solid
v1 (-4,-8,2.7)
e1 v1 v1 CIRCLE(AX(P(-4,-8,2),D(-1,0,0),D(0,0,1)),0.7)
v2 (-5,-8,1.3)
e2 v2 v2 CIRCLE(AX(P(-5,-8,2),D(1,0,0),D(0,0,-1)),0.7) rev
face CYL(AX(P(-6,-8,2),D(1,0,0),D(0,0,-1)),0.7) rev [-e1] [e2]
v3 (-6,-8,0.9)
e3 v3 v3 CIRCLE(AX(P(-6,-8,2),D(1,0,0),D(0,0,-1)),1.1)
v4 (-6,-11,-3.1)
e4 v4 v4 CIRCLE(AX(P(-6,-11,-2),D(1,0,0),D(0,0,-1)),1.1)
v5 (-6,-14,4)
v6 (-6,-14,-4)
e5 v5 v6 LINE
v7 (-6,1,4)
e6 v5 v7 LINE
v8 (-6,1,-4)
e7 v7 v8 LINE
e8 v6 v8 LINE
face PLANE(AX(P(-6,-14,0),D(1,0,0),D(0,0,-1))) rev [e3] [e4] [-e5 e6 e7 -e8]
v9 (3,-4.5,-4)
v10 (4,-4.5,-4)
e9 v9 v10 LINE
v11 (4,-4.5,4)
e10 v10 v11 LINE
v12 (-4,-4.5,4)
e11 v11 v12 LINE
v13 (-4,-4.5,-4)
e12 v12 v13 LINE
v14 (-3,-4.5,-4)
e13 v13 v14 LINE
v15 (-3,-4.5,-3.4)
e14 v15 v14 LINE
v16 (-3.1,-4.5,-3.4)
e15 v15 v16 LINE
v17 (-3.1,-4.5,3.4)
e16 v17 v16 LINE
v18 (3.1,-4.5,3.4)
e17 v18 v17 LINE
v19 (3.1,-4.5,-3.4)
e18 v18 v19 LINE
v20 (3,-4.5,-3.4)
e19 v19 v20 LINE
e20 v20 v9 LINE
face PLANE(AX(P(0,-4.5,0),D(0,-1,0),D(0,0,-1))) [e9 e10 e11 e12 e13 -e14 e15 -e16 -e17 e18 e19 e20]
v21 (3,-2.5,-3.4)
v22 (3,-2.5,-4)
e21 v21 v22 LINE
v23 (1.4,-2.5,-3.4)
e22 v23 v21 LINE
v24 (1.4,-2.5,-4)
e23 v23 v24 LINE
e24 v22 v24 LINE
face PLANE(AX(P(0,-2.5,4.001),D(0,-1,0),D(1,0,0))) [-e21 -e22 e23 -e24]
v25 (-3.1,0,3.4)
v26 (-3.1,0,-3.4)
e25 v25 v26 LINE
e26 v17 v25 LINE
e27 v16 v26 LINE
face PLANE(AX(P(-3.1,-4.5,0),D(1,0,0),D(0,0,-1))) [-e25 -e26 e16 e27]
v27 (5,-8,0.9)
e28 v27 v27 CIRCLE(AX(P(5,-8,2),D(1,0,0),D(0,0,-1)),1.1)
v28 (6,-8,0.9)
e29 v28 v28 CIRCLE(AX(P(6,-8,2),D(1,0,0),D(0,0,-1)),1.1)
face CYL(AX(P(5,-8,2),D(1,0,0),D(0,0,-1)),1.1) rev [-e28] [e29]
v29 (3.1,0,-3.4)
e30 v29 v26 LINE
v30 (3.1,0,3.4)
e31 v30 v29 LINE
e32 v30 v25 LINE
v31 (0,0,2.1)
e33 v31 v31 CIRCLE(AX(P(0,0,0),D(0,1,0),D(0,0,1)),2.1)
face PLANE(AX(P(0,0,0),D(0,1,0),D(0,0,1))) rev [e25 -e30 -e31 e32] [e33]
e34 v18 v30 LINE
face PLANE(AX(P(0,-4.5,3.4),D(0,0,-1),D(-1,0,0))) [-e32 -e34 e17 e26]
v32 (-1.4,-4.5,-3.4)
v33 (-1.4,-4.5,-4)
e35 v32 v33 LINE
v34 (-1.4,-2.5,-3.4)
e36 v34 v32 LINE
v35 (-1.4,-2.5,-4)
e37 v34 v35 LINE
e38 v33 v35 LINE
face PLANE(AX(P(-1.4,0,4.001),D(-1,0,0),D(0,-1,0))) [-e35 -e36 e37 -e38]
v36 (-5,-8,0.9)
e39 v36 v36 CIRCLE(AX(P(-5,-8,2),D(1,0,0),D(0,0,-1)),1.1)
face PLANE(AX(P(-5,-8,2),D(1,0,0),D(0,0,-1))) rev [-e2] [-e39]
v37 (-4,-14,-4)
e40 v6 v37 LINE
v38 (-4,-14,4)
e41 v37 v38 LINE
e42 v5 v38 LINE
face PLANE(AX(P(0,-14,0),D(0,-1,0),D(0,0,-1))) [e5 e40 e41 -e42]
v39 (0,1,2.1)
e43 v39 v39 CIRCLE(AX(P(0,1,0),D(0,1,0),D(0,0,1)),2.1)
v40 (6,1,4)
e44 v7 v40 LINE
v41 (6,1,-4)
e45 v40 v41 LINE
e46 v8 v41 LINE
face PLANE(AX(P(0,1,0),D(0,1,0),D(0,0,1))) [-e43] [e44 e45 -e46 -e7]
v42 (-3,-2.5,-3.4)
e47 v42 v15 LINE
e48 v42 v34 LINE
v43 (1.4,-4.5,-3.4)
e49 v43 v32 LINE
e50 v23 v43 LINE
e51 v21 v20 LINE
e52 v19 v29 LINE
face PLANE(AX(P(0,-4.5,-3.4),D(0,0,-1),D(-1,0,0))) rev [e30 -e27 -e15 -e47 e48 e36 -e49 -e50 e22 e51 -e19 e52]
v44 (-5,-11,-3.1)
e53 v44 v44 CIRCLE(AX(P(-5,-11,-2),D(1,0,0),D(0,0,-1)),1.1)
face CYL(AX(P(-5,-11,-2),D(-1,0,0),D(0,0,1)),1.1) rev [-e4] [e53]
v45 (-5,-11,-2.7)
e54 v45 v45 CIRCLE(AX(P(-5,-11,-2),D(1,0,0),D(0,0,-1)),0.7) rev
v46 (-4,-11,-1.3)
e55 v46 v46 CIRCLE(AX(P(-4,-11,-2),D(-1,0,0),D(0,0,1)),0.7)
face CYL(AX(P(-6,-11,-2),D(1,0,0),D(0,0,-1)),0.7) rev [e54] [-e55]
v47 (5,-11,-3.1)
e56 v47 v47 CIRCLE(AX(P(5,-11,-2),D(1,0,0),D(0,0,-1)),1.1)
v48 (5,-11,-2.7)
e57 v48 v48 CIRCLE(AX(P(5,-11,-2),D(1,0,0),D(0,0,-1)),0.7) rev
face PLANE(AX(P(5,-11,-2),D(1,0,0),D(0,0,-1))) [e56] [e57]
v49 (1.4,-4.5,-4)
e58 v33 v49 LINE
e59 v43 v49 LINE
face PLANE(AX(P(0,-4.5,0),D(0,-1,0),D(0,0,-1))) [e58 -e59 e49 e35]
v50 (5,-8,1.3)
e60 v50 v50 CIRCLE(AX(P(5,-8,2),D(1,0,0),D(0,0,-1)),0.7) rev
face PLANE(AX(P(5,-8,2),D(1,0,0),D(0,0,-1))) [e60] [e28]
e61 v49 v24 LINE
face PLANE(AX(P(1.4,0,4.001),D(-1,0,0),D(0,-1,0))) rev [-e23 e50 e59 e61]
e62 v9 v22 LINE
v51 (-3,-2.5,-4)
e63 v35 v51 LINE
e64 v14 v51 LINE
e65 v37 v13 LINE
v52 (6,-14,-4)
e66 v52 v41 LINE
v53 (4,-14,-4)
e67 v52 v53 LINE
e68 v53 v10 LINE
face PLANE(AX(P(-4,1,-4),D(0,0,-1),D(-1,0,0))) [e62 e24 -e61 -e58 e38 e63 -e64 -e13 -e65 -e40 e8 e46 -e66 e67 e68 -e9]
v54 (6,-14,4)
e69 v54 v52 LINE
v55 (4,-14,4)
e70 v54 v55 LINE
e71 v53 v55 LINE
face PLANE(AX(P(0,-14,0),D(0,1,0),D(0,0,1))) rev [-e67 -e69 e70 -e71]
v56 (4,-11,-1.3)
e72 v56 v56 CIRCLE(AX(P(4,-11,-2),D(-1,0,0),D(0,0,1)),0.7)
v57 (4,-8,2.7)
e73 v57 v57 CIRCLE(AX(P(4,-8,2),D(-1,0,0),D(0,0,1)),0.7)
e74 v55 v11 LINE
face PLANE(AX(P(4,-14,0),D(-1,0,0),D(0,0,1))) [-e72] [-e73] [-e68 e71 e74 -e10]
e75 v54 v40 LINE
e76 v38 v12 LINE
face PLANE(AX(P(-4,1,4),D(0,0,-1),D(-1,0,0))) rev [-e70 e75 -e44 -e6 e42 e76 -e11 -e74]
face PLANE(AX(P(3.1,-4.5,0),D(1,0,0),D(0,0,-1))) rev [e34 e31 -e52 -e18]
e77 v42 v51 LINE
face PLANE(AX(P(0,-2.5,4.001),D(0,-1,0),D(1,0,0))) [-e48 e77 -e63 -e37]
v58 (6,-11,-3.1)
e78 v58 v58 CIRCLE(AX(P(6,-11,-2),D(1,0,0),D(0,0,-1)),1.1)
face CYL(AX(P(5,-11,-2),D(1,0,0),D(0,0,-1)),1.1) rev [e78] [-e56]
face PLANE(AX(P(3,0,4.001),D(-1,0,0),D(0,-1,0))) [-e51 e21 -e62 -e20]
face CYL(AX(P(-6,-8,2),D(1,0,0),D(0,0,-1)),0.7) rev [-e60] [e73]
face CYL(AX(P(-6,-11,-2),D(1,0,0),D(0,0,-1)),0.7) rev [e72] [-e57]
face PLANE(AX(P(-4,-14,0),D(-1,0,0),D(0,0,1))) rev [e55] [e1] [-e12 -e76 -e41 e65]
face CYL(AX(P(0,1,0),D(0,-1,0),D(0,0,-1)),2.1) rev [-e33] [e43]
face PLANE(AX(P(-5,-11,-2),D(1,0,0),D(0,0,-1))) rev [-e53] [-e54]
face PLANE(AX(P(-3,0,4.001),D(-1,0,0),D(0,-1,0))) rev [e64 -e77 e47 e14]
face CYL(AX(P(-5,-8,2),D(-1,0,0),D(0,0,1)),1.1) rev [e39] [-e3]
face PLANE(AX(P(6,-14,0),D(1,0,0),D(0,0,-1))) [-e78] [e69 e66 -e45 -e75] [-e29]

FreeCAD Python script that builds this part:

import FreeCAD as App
import Part
import Sketcher
from FreeCAD import Vector
Q = App.Units.Quantity


def add_polygon(sketch, points):
    """Adds a closed chain of lines whose ends are joined by coincident constraints."""
    first, n = sketch.GeometryCount, len(points)
    for a, b in zip(points, points[1:] + points[:1]):
        sketch.addGeometry(Part.LineSegment(App.Vector(*a, 0), App.Vector(*b, 0)), False)
    for i in range(n):
        sketch.addConstraint(Sketcher.Constraint("Coincident", first + i, 2, first + (i + 1) % n, 1))

doc = App.newDocument("Part")
body = doc.addObject("PartDesign::Body", "Body")

# Sketch on XZ plane
sketch1 = doc.addObject("Sketcher::SketchObject", "Sketch")
body.addObject(sketch1)
sketch1.AttachmentSupport = (doc.XZ_Plane, [""])
sketch1.MapMode = "FlatFace"
add_polygon(sketch1, [(-4, -4), (-4, 4), (4, 4), (4, -4)])  # lines 0-3
sketch1.addGeometry(Part.Circle(Vector(0, 0, 0), Vector(0, 0, 1), 2.1), False)  # 4
sketch1.addConstraint([
    Sketcher.Constraint("Vertical", 0),
    Sketcher.Constraint("Horizontal", 1),
    Sketcher.Constraint("Vertical", 2),
    Sketcher.Constraint("Horizontal", 3),
    Sketcher.Constraint("Coincident", 4, 3, -1, 1),
    Sketcher.Constraint("Symmetric", 0, 2, 2, 2, -1, 1),
    Sketcher.Constraint("Equal", 3, 0),
    Sketcher.Constraint("Diameter", 4, Q("4.2 mm")),
    Sketcher.Constraint("DistanceX", 1, 1, 1, 2, Q("8 mm")),
])
pad1 = doc.addObject("PartDesign::Pad", "Pad")
body.addObject(pad1)
pad1.Profile = sketch1
pad1.Length = 1
pad1.Reversed = True
body2 = doc.addObject("PartDesign::Body", "Body001")

# Sketch on XZ plane
sketch2 = doc.addObject("Sketcher::SketchObject", "Sketch001")
body2.addObject(sketch2)
sketch2.AttachmentSupport = (doc.getObject("XZ_Plane001"), [""])
sketch2.MapMode = "FlatFace"
sketch2.AttachmentOffset = App.Placement(Vector(0, 0, -1), App.Rotation())
add_polygon(sketch2, [(-6, -4), (-6, 4), (-4, 4), (-4, -4)])  # lines 0-3
sketch2.addConstraint([
    Sketcher.Constraint("Vertical", 0),
    Sketcher.Constraint("Horizontal", 1),
    Sketcher.Constraint("Vertical", 2),
    Sketcher.Constraint("Horizontal", 3),
    Sketcher.Constraint("DistanceX", 1, 1, 1, 2, Q("2 mm")),
    Sketcher.Constraint("DistanceY", 0, 1, 0, 2, Q("8 mm")),
    Sketcher.Constraint("DistanceX", 0, 2, -1, 1, Q("6 mm")),
    Sketcher.Constraint("DistanceY", -1, 1, 0, 2, Q("4 mm")),
])
pad2 = doc.addObject("PartDesign::Pad", "Pad001")
body2.addObject(pad2)
pad2.Profile = sketch2
pad2.Length = 15
body3 = doc.addObject("PartDesign::Body", "Body002")

# Sketch on XZ plane
sketch3 = doc.addObject("Sketcher::SketchObject", "Sketch002")
body3.addObject(sketch3)
sketch3.AttachmentSupport = (doc.getObject("XZ_Plane002"), [""])
sketch3.MapMode = "FlatFace"
sketch3.AttachmentOffset = App.Placement(Vector(0, 0, -1), App.Rotation())
add_polygon(sketch3, [(4, -4), (4, 4), (6, 4), (6, -4)])  # lines 0-3
sketch3.addConstraint([
    Sketcher.Constraint("Vertical", 0),
    Sketcher.Constraint("Horizontal", 1),
    Sketcher.Constraint("Vertical", 2),
    Sketcher.Constraint("Horizontal", 3),
    Sketcher.Constraint("DistanceX", 1, 1, 1, 2, Q("2 mm")),
    Sketcher.Constraint("DistanceY", 0, 1, 0, 2, Q("8 mm")),
    Sketcher.Constraint("DistanceX", -1, 1, 0, 2, Q("4 mm")),
    Sketcher.Constraint("DistanceY", -1, 1, 0, 2, Q("4 mm")),
])
pad3 = doc.addObject("PartDesign::Pad", "Pad002")
body3.addObject(pad3)
pad3.Profile = sketch3
pad3.Length = 15
doc.recompute()

boolean = doc.addObject("PartDesign::Boolean", "Boolean")
body.addObject(boolean)
boolean.Type = "Fuse"
boolean.addObjects([body2])
doc.recompute()

boolean2 = doc.addObject("PartDesign::Boolean", "Boolean001")
body.addObject(boolean2)
boolean2.Type = "Fuse"
boolean2.addObjects([body3])

# Sketch on XZ plane
sketch4 = doc.addObject("Sketcher::SketchObject", "Sketch003")
body.addObject(sketch4)
sketch4.AttachmentSupport = (doc.XZ_Plane, [""])
sketch4.MapMode = "FlatFace"
add_polygon(sketch4, [(-4, 4), (-4, -4), (4, -4), (4, 4)])  # lines 0-3
add_polygon(sketch4, [(-3, 3), (3, 3), (3, -3), (-3, -3)])  # lines 4-7
sketch4.addConstraint([
    Sketcher.Constraint("Vertical", 0),
    Sketcher.Constraint("Horizontal", 1),
    Sketcher.Constraint("Vertical", 2),
    Sketcher.Constraint("Horizontal", 3),
    Sketcher.Constraint("Horizontal", 4),
    Sketcher.Constraint("Vertical", 5),
    Sketcher.Constraint("Horizontal", 6),
    Sketcher.Constraint("Vertical", 7),
    Sketcher.Constraint("Symmetric", 0, 2, 2, 2, -1, 1),
    Sketcher.Constraint("Symmetric", 4, 2, 6, 2, -1, 1),
    Sketcher.Constraint("Equal", 3, 0),
    Sketcher.Constraint("DistanceX", 1, 1, 1, 2, Q("8 mm")),
    Sketcher.Constraint("DistanceX", 4, 1, 4, 2, Q("6.2 mm")),
    Sketcher.Constraint("DistanceY", 5, 2, 5, 1, Q("6.8 mm")),
])
pad4 = doc.addObject("PartDesign::Pad", "Pad003")
body.addObject(pad4)
pad4.Profile = sketch4
pad4.Length = 4.5

# Sketch on XY plane
sketch5 = doc.addObject("Sketcher::SketchObject", "Sketch004")
body.addObject(sketch5)
sketch5.AttachmentSupport = (doc.XY_Plane, [""])
sketch5.MapMode = "FlatFace"
sketch5.AttachmentOffset = App.Placement(Vector(0, 0, -4), App.Rotation())
add_polygon(sketch5, [(3, -2.5), (3, -4.5), (1.4, -4.5), (1.4, -2.5)])  # lines 0-3
sketch5.addConstraint([
    Sketcher.Constraint("Vertical", 0),
    Sketcher.Constraint("Horizontal", 1),
    Sketcher.Constraint("Vertical", 2),
    Sketcher.Constraint("Horizontal", 3),
    Sketcher.Constraint("DistanceY", 0, 2, 0, 1, Q("2 mm")),
    Sketcher.Constraint("DistanceX", 1, 2, 1, 1, Q("1.6 mm")),
    Sketcher.Constraint("DistanceX", -1, 1, 0, 2, Q("3 mm")),
    Sketcher.Constraint("DistanceY", 0, 2, -1, 1, Q("4.5 mm")),
])
pocket1 = doc.addObject("PartDesign::Pocket", "Pocket")
body.addObject(pocket1)
pocket1.Profile = sketch5
pocket1.Type = "UpToFirst"
pocket1.Reversed = True

# Sketch on XY plane
sketch6 = doc.addObject("Sketcher::SketchObject", "Sketch005")
body.addObject(sketch6)
sketch6.AttachmentSupport = (doc.XY_Plane, [""])
sketch6.MapMode = "FlatFace"
sketch6.AttachmentOffset = App.Placement(Vector(0, 0, -4), App.Rotation())
add_polygon(sketch6, [(-1.4, -2.5), (-1.4, -4.5), (-3, -4.5), (-3, -2.5)])  # lines 0-3
sketch6.addConstraint([
    Sketcher.Constraint("Vertical", 0),
    Sketcher.Constraint("Horizontal", 1),
    Sketcher.Constraint("Vertical", 2),
    Sketcher.Constraint("Horizontal", 3),
    Sketcher.Constraint("DistanceY", 0, 2, 0, 1, Q("2 mm")),
    Sketcher.Constraint("DistanceX", 1, 2, 1, 1, Q("1.6 mm")),
    Sketcher.Constraint("DistanceX", 1, 2, -1, 1, Q("3 mm")),
    Sketcher.Constraint("DistanceY", 0, 2, -1, 1, Q("4.5 mm")),
])
pocket2 = doc.addObject("PartDesign::Pocket", "Pocket001")
body.addObject(pocket2)
pocket2.Profile = sketch6
pocket2.Type = "UpToFirst"
pocket2.Reversed = True

# Sketch on YZ plane
sketch7 = doc.addObject("Sketcher::SketchObject", "Sketch006")
body.addObject(sketch7)
sketch7.AttachmentSupport = (doc.YZ_Plane, [""])
sketch7.MapMode = "FlatFace"
sketch7.AttachmentOffset = App.Placement(Vector(0, 0, 6), App.Rotation())
sketch7.addGeometry([
    Part.Circle(Vector(-8, 2, 0), Vector(0, 0, 1), 0.7),
    Part.Circle(Vector(-11, -2, 0), Vector(0, 0, 1), 0.7),
], False)
sketch7.addConstraint([
    Sketcher.Constraint("Equal", 0, 1),
    Sketcher.Constraint("Diameter", 0, Q("1.4 mm")),
    Sketcher.Constraint("DistanceX", 0, 3, -1, 1, Q("8 mm")),
    Sketcher.Constraint("DistanceY", -1, 1, 0, 3, Q("2 mm")),
    Sketcher.Constraint("DistanceX", 1, 3, -1, 1, Q("11 mm")),
    Sketcher.Constraint("DistanceY", 1, 3, -1, 1, Q("2 mm")),
])
pocket3 = doc.addObject("PartDesign::Pocket", "Pocket002")
body.addObject(pocket3)
pocket3.Profile = sketch7
pocket3.Type = "ThroughAll"

# Sketch on YZ plane
sketch8 = doc.addObject("Sketcher::SketchObject", "Sketch007")
body.addObject(sketch8)
sketch8.AttachmentSupport = (doc.YZ_Plane, [""])
sketch8.MapMode = "FlatFace"
sketch8.AttachmentOffset = App.Placement(Vector(0, 0, 6), App.Rotation())
sketch8.addGeometry([
    Part.Circle(Vector(-8, 2, 0), Vector(0, 0, 1), 1.1),
    Part.Circle(Vector(-11, -2, 0), Vector(0, 0, 1), 1.1),
], False)
sketch8.addConstraint([
    Sketcher.Constraint("Equal", 0, 1),
    Sketcher.Constraint("Diameter", 0, Q("2.2 mm")),
    Sketcher.Constraint("DistanceX", 0, 3, -1, 1, Q("8 mm")),
    Sketcher.Constraint("DistanceY", -1, 1, 0, 3, Q("2 mm")),
    Sketcher.Constraint("DistanceX", 1, 3, -1, 1, Q("11 mm")),
    Sketcher.Constraint("DistanceY", 1, 3, -1, 1, Q("2 mm")),
])
pocket4 = doc.addObject("PartDesign::Pocket", "Pocket003")
body.addObject(pocket4)
pocket4.Profile = sketch8
pocket4.Length = 1

# Sketch on YZ plane
sketch9 = doc.addObject("Sketcher::SketchObject", "Sketch008")
body.addObject(sketch9)
sketch9.AttachmentSupport = (doc.YZ_Plane, [""])
sketch9.MapMode = "FlatFace"
sketch9.AttachmentOffset = App.Placement(Vector(0, 0, -5), App.Rotation())
sketch9.addGeometry([
    Part.Circle(Vector(-8, 2, 0), Vector(0, 0, 1), 1.1),
    Part.Circle(Vector(-11, -2, 0), Vector(0, 0, 1), 1.1),
], False)
sketch9.addConstraint([
    Sketcher.Constraint("Equal", 0, 1),
    Sketcher.Constraint("Diameter", 0, Q("2.2 mm")),
    Sketcher.Constraint("DistanceX", 0, 3, -1, 1, Q("8 mm")),
    Sketcher.Constraint("DistanceY", -1, 1, 0, 3, Q("2 mm")),
    Sketcher.Constraint("DistanceX", 1, 3, -1, 1, Q("11 mm")),
    Sketcher.Constraint("DistanceY", 1, 3, -1, 1, Q("2 mm")),
])
pocket5 = doc.addObject("PartDesign::Pocket", "Pocket004")
body.addObject(pocket5)
pocket5.Profile = sketch9
pocket5.Length = 1

doc.recompute()
